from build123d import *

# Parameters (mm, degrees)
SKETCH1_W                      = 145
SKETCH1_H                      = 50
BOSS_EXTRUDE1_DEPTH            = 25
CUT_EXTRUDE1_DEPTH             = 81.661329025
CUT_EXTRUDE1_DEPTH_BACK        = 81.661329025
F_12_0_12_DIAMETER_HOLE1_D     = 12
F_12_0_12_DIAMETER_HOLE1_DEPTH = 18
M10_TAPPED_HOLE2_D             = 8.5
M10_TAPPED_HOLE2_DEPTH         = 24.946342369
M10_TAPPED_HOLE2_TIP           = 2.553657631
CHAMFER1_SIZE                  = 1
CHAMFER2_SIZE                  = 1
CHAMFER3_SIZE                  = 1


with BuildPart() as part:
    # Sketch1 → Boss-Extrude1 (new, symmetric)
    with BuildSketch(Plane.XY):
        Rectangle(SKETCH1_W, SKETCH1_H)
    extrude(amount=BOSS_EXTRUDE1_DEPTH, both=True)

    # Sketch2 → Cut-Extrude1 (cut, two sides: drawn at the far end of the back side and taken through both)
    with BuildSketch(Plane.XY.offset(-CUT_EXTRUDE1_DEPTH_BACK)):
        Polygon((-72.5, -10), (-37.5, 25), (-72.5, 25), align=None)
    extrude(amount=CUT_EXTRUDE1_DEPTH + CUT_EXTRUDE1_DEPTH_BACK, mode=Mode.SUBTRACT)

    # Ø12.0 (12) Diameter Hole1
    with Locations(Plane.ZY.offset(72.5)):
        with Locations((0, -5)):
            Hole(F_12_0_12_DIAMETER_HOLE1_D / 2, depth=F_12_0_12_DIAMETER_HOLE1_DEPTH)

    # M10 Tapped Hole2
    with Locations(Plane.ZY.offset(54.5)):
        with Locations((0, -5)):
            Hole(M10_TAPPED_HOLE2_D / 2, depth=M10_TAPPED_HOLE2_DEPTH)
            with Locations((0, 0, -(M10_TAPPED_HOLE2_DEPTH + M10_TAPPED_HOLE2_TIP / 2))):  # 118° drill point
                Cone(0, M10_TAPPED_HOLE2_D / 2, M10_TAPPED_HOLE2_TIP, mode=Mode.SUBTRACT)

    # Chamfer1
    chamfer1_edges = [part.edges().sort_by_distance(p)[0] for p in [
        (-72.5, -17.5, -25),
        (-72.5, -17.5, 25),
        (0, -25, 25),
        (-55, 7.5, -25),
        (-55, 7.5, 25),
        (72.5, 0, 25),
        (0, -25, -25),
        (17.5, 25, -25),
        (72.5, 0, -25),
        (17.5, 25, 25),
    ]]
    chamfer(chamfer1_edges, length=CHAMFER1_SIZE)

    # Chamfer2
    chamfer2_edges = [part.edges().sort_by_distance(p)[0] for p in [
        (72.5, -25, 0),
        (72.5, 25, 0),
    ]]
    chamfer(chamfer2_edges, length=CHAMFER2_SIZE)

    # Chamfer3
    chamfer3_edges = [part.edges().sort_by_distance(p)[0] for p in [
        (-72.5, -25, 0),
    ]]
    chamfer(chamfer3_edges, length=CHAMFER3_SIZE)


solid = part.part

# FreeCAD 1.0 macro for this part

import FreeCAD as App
import Part
import Sketcher

V = App.Vector


def edges_at(feature, points):
    """Names of the edges that pass closest to the given points."""
    edges = feature.Shape.Edges
    near = lambda p: min(range(len(edges)), key=lambda i: edges[i].distToShape(Part.Vertex(*p))[0])
    return sorted({f"Edge{near(p) + 1}" for p in points})


def add_polygon(sketch, points):
    """Adds a closed chain of lines whose ends are joined by coincident constraints."""
    first, n = sketch.GeometryCount, len(points)
    for a, b in zip(points, points[1:] + points[:1]):
        sketch.addGeometry(Part.LineSegment(App.Vector(*a, 0), App.Vector(*b, 0)), False)
    for i in range(n):
        sketch.addConstraint(Sketcher.Constraint("Coincident", first + i, 2, first + (i + 1) % n, 1))

doc = App.newDocument("Part")
body = doc.addObject("PartDesign::Body", "Body")

sketch1 = doc.addObject("Sketcher::SketchObject", "Sketch")
body.addObject(sketch1)
sketch1.AttachmentSupport = (doc.XY_Plane, [""])
sketch1.MapMode = "FlatFace"
add_polygon(sketch1, [(-72.5, 25), (-72.5, -25), (72.5, -25), (72.5, 25)])
sketch1.addConstraint([
    Sketcher.Constraint("Vertical", 0),
    Sketcher.Constraint("Horizontal", 1),
    Sketcher.Constraint("Vertical", 2),
    Sketcher.Constraint("Horizontal", 3),
    Sketcher.Constraint("Symmetric", 0, 2, 2, 2, -1, 1),
    Sketcher.Constraint("DistanceX", 1, 1, 1, 2, 145.0),
    Sketcher.Constraint("DistanceY", 0, 2, 0, 1, 50.0),
])
pad1 = doc.addObject("PartDesign::Pad", "Pad")
body.addObject(pad1)
pad1.Profile = sketch1
pad1.Length = 50
pad1.Midplane = True

sketch2 = doc.addObject("Sketcher::SketchObject", "Sketch001")
body.addObject(sketch2)
sketch2.AttachmentSupport = (doc.XY_Plane, [""])
sketch2.MapMode = "FlatFace"
add_polygon(sketch2, [(-72.5, -10), (-37.5, 25), (-72.5, 25)])
sketch2.addConstraint([
    Sketcher.Constraint("Horizontal", 1),
    Sketcher.Constraint("Vertical", 2),
    Sketcher.Constraint("Equal", 1, 2),
    Sketcher.Constraint("DistanceX", 1, 2, 1, 1, 35.0),
    Sketcher.Constraint("DistanceY", -1, 1, 0, 2, 25.0),
    Sketcher.Constraint("DistanceX", 0, 2, -1, 1, 37.5),
])
pocket1 = doc.addObject("PartDesign::Pocket", "Pocket")
body.addObject(pocket1)
pocket1.Profile = sketch2
pocket1.Type = "ThroughAll"
pocket1.Midplane = True

sketch3 = doc.addObject("Sketcher::SketchObject", "Sketch002")
body.addObject(sketch3)
sketch3.AttachmentSupport = (doc.YZ_Plane, [""])
sketch3.MapMode = "FlatFace"
sketch3.AttachmentOffset = App.Placement(V(0, 0, -72.5), App.Rotation())
sketch3.addGeometry(Part.Circle(V(-5, 0, 0), V(0, 0, 1), 6), False)
sketch3.addConstraint([
    Sketcher.Constraint("PointOnObject", 0, 3, -1),
    Sketcher.Constraint("Diameter", 0, 12.0),
    Sketcher.Constraint("DistanceX", 0, 3, -1, 1, 5.0),
])
doc.recompute()
hole = doc.addObject("PartDesign::Hole", "Hole")
body.addObject(hole)
hole.Profile = sketch3
hole.ThreadType = "None"
hole.Diameter = 12
hole.DepthType = "Dimension"
hole.Depth = 18
hole.DrillPoint = "Flat"
hole.Reversed = True

sketch4 = doc.addObject("Sketcher::SketchObject", "Sketch003")
body.addObject(sketch4)
sketch4.AttachmentSupport = (doc.YZ_Plane, [""])
sketch4.MapMode = "FlatFace"
sketch4.AttachmentOffset = App.Placement(V(0, 0, -54.5), App.Rotation())
sketch4.addGeometry(Part.Circle(V(-5, 0, 0), V(0, 0, 1), 4.25), False)
sketch4.addConstraint([
    Sketcher.Constraint("PointOnObject", 0, 3, -1),
    Sketcher.Constraint("Diameter", 0, 8.5),
    Sketcher.Constraint("DistanceX", 0, 3, -1, 1, 5.0),
])
doc.recompute()
hole2 = doc.addObject("PartDesign::Hole", "Hole001")
body.addObject(hole2)
hole2.Profile = sketch4
hole2.ThreadType = "None"
hole2.Diameter = 8.5
hole2.DepthType = "Dimension"
hole2.Depth = 24.946342
hole2.DrillPoint = "Angled"
hole2.DrillPointAngle = 118
hole2.Reversed = True
doc.recompute()

chamfer = doc.addObject("PartDesign::Chamfer", "Chamfer")
body.addObject(chamfer)
chamfer.Base = (hole2, edges_at(hole2, [
    (-72.5, -17.5, -25),
    (-72.5, -17.5, 25),
    (0, -25, 25),
    (-55, 7.5, -25),
    (-55, 7.5, 25),
    (72.5, 0, 25),
    (0, -25, -25),
    (17.5, 25, -25),
    (72.5, 0, -25),
    (17.5, 25, 25),
]))
chamfer.Size = 1
doc.recompute()

chamfer2 = doc.addObject("PartDesign::Chamfer", "Chamfer001")
body.addObject(chamfer2)
chamfer2.Base = (chamfer, edges_at(chamfer, [(72.5, -25, 0), (72.5, 25, 0)]))
chamfer2.Size = 1
doc.recompute()

chamfer3 = doc.addObject("PartDesign::Chamfer", "Chamfer002")
body.addObject(chamfer3)
chamfer3.Base = (chamfer2, edges_at(chamfer2, [(-72.5, -25, 0)]))
chamfer3.Size = 1

doc.recompute()
